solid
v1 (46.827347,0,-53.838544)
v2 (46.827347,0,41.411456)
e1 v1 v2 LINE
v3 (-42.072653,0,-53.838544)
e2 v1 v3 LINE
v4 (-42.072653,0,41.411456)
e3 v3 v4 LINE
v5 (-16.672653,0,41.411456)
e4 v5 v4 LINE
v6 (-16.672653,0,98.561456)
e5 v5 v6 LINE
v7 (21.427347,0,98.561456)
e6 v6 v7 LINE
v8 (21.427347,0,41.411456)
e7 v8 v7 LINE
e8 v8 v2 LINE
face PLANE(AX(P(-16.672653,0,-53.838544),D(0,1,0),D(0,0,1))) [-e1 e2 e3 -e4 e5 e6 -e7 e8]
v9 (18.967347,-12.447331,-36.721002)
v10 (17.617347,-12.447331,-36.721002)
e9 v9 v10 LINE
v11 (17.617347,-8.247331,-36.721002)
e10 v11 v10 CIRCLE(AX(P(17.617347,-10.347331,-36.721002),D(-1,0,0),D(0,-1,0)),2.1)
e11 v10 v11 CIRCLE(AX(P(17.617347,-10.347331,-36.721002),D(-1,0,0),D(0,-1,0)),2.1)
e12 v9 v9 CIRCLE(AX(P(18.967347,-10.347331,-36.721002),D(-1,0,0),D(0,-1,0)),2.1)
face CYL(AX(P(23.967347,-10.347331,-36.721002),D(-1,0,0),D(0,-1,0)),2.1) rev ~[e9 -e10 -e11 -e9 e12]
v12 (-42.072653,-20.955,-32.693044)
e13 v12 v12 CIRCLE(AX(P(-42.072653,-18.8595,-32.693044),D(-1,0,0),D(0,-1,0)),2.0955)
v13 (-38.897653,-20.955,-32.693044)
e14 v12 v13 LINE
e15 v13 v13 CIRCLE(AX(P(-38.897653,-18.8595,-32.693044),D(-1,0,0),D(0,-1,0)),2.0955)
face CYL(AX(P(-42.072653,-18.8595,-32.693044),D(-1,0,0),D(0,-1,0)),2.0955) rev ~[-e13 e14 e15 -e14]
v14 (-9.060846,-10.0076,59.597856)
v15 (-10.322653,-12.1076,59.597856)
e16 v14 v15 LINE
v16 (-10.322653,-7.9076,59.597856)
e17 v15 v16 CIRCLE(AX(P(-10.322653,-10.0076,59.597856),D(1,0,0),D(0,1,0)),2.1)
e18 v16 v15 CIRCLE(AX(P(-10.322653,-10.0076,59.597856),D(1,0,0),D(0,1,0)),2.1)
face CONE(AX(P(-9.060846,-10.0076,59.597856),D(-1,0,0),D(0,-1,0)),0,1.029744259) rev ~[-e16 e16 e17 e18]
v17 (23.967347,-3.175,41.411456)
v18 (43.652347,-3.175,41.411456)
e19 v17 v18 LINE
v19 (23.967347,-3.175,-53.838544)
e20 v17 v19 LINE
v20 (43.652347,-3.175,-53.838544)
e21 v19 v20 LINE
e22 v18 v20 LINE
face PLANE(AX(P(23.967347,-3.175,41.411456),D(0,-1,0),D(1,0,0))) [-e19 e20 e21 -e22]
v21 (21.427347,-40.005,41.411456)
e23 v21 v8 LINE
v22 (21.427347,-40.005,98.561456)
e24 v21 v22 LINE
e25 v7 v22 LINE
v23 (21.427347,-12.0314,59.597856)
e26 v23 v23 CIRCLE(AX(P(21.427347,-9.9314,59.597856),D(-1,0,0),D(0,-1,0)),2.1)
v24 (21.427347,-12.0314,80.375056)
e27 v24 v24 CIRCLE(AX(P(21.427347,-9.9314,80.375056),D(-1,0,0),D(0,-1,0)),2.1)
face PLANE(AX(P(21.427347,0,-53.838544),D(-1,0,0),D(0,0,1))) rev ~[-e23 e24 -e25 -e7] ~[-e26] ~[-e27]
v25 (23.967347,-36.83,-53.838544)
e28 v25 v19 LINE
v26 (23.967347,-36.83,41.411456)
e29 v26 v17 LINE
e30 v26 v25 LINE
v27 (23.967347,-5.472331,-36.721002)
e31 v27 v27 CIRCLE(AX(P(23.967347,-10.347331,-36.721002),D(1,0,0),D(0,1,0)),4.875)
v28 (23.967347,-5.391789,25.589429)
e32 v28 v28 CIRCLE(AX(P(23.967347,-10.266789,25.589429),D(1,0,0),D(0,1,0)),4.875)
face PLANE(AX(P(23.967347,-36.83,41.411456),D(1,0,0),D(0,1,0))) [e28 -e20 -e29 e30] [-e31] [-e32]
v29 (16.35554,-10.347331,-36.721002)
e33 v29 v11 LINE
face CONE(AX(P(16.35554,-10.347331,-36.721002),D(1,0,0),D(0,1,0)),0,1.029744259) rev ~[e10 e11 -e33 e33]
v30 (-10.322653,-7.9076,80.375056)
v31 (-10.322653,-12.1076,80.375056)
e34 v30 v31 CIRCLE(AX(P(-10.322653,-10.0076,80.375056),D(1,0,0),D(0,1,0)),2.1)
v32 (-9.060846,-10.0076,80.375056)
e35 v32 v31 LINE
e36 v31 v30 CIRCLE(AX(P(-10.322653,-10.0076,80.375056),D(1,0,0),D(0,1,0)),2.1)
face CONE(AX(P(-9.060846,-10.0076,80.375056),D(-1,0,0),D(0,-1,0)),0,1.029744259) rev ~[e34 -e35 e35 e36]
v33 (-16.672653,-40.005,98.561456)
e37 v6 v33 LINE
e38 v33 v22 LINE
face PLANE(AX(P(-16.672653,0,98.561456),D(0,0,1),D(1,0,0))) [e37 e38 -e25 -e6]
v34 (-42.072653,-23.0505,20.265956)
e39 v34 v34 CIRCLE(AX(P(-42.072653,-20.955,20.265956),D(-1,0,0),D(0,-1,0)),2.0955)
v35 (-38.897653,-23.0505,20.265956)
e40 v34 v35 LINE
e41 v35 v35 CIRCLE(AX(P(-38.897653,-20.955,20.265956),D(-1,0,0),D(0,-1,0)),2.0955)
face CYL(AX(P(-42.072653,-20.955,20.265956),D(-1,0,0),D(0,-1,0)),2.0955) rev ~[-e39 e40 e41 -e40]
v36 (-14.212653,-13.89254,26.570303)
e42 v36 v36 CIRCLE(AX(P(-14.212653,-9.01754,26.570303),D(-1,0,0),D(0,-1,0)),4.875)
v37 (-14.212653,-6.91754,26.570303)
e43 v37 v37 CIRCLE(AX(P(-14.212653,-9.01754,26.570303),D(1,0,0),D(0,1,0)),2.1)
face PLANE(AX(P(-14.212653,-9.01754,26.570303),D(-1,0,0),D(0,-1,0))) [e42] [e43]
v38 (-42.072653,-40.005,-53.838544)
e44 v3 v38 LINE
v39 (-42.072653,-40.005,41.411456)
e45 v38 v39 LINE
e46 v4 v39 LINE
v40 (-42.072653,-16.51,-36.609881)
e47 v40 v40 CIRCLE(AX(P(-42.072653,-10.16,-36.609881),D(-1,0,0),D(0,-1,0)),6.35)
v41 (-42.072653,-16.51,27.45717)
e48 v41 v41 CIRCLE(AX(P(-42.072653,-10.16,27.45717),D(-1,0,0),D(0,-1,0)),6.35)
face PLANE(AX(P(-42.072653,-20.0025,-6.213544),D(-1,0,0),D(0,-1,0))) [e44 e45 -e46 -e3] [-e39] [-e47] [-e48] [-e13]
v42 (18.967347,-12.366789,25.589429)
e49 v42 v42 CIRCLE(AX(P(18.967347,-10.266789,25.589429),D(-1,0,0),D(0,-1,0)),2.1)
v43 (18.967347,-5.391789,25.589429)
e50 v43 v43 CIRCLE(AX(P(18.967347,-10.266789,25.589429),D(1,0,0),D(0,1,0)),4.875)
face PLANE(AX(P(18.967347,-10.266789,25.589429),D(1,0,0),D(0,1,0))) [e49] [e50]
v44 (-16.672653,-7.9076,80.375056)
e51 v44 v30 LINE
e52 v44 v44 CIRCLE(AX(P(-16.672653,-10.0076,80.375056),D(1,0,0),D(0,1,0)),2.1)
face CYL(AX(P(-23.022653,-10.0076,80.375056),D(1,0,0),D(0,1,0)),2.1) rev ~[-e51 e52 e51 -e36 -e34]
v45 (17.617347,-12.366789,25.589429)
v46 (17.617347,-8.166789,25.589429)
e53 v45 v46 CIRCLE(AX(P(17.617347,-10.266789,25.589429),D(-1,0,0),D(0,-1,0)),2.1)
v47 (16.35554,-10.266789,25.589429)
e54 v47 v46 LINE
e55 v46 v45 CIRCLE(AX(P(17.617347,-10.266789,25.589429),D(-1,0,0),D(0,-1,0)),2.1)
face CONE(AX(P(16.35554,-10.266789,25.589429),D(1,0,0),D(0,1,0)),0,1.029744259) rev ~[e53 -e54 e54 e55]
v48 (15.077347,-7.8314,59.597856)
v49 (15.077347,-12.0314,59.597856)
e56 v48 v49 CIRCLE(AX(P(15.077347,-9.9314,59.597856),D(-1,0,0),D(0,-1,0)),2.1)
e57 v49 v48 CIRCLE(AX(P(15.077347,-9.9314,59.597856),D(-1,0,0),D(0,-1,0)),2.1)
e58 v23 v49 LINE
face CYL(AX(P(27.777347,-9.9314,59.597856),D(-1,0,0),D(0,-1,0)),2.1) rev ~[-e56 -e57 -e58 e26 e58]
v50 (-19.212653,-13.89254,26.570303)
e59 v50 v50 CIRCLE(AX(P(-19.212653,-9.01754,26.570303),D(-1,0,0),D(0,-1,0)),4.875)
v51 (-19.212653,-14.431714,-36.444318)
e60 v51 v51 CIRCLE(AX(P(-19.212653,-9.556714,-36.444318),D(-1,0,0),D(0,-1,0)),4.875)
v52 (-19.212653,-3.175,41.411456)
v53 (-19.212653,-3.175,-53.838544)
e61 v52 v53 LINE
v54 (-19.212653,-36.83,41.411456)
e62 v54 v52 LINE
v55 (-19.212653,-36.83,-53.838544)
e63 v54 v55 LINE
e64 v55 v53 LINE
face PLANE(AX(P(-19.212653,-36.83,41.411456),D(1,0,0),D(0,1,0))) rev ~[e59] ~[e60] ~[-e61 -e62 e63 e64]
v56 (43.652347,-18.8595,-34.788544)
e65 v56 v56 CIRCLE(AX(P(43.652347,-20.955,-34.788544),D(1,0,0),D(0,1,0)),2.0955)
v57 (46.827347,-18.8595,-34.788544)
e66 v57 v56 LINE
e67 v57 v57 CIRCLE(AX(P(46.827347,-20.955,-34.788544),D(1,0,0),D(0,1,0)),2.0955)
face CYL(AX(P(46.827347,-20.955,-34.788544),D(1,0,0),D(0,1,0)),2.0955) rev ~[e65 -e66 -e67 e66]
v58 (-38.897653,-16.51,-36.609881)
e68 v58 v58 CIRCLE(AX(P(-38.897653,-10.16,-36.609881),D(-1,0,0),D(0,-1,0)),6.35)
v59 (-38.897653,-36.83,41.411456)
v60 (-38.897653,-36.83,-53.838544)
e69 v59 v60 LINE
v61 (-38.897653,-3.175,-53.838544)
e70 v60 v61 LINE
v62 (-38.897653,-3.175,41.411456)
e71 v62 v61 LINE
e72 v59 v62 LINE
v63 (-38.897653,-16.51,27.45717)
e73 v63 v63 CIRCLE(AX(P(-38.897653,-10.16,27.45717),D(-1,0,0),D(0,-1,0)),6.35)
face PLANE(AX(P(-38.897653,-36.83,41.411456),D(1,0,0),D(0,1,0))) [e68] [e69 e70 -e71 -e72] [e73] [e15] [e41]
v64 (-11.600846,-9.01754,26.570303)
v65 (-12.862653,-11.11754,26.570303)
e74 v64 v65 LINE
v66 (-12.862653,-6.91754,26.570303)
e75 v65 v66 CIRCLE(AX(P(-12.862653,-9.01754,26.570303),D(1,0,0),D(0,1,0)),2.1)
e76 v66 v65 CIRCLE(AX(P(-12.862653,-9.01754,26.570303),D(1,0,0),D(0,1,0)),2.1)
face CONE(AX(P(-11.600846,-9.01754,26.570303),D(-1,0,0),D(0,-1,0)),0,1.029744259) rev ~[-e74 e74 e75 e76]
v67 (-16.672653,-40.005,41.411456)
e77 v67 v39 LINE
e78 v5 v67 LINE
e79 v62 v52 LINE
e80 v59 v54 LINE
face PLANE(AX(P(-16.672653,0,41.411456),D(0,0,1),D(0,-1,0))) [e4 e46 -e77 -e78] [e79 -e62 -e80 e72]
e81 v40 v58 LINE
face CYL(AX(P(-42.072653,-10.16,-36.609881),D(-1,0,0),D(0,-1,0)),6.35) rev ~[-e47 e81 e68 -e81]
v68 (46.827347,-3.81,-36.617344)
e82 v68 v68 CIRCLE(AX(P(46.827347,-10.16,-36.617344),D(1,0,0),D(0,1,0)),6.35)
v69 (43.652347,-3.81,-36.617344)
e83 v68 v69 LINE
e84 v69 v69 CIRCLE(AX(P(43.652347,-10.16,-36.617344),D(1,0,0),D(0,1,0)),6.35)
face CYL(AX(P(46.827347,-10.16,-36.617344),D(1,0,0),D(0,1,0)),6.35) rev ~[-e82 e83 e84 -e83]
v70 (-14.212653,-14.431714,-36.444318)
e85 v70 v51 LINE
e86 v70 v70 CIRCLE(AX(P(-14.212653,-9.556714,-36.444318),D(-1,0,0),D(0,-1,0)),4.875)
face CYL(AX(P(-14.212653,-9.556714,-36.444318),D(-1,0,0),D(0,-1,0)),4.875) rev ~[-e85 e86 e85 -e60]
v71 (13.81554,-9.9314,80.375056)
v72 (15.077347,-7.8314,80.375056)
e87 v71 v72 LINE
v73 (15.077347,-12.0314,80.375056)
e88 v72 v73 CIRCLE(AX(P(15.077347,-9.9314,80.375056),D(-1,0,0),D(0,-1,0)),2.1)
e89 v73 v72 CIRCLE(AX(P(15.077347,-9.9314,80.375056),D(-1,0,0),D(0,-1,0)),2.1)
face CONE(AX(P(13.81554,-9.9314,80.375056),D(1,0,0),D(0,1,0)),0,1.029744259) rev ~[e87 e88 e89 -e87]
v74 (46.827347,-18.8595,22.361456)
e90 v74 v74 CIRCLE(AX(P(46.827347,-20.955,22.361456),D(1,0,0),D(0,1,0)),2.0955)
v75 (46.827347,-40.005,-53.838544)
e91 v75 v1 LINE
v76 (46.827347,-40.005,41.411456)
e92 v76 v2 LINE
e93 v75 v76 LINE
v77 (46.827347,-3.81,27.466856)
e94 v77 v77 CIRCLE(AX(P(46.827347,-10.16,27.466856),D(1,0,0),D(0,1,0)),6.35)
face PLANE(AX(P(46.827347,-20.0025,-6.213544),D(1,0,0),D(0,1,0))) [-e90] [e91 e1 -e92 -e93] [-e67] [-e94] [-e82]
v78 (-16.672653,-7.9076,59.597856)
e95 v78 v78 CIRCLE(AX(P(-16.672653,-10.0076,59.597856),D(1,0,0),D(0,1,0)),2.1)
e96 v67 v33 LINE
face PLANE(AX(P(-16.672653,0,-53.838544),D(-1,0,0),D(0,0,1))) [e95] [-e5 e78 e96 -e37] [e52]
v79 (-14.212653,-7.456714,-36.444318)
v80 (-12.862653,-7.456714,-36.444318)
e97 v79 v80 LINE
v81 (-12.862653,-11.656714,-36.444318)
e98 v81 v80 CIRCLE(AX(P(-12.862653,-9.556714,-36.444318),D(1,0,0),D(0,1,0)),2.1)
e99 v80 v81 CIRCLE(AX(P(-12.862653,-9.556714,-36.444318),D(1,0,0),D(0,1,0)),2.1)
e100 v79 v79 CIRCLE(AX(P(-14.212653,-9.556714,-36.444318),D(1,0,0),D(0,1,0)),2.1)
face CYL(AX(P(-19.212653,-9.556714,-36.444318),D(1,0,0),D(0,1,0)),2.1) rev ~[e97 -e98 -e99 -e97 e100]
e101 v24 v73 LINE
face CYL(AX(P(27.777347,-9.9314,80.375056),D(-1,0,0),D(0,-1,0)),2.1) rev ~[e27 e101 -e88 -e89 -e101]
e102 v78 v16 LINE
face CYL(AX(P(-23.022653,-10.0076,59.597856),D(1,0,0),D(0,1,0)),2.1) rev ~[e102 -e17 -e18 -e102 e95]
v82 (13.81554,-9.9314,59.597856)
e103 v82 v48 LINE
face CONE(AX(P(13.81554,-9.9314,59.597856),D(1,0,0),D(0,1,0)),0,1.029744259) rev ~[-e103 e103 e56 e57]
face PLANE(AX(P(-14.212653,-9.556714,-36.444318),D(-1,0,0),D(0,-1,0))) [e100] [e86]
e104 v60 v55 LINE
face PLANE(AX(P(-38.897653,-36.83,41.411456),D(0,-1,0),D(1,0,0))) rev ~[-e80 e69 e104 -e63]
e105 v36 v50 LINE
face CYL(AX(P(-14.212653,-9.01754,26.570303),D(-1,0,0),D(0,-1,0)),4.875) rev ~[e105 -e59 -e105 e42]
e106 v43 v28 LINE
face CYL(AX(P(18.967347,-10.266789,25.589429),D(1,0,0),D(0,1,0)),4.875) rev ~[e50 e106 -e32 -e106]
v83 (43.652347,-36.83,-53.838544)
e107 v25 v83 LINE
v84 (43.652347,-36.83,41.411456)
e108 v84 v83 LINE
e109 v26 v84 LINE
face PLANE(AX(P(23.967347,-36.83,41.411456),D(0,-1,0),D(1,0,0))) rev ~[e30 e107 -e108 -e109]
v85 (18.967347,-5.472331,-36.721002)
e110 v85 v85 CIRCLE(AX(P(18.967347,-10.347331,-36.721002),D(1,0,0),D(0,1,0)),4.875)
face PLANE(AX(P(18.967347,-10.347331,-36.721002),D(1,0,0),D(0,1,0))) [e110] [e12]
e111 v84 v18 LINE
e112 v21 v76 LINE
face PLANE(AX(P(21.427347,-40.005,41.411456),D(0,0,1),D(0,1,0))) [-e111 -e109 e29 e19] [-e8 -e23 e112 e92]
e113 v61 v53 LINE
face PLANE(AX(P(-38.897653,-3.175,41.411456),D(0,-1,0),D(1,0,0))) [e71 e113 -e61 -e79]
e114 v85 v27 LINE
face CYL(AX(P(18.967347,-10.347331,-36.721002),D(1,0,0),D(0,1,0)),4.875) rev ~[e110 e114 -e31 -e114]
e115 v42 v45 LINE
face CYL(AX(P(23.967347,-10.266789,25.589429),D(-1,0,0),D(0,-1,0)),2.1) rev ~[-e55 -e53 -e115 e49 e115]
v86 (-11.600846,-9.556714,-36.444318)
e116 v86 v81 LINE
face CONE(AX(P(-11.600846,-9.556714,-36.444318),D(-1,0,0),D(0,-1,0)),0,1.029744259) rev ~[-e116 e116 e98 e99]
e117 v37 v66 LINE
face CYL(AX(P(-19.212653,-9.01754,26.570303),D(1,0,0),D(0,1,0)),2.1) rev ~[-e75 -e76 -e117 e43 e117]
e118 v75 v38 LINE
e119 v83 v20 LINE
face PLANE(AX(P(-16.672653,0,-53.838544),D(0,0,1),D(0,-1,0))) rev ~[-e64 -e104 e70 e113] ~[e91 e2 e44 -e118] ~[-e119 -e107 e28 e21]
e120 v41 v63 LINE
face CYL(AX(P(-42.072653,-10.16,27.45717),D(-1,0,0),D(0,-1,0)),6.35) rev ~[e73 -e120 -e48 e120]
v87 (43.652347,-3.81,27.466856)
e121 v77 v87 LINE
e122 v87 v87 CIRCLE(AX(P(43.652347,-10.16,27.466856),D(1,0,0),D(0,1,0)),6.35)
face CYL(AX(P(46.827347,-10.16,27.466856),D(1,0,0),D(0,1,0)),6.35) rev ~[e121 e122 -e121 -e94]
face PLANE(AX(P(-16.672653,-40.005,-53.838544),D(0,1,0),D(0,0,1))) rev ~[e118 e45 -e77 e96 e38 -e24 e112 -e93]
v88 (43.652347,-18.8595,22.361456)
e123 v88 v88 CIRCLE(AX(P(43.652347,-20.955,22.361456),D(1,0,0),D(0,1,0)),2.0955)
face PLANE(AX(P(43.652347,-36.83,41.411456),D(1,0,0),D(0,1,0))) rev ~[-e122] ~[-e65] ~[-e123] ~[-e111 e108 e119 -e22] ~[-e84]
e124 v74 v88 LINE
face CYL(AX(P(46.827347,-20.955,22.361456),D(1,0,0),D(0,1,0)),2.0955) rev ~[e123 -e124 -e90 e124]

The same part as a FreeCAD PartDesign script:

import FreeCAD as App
import Part
import Sketcher

V = App.Vector
Q = App.Units.Quantity

doc = App.newDocument("Part")
params = doc.addObject("Spreadsheet::Sheet", "Params")
for row, (alias, value) in enumerate([
    ("sketch1_height", "6 in"),
    ("sketch1_width", "1.5 in"),
    ("pad1_length", "1.575 in"),
    ("sketch2_height", "3.75 in"),
    ("sketch2_width", "1.575 in"),
    ("pad2_length", "1 in"),
    ("sketch3_height", "3.75 in"),
    ("sketch3_width", "1.575 in"),
    ("pad3_length", "1 in"),
    ("sketch4_width", "0.775 in"),
    ("sketch4_height", "1.325 in"),
    ("sketch5_width", "0.775 in"),
    ("sketch5_height", "1.325 in"),
    ("hole_diameter", "4.2 mm"),
    ("hole_depth", "0.25 in"),
    ("hole2_diameter", "4.2 mm"),
    ("hole2_depth", "0.25 in"),
    ("sketch8_diameter", "0.5 in"),
    ("pocket3_length", "0.2 in"),
    ("hole3_diameter", "4.2 mm"),
    ("hole3_depth", "0.25 in"),
    ("hole3_cbore_diameter", "9.75 mm"),
    ("hole3_cbore_depth", "5 mm"),
    ("sketch10_diameter", "0.165 in"),
    ("pocket4_length", "0.125 in"),
    ("sketch11_diameter", "0.5 in"),
    ("pocket5_length", "0.2 in"),
    ("hole4_diameter", "4.2 mm"),
    ("hole4_depth", "0.25 in"),
    ("hole4_cbore_diameter", "9.75 mm"),
    ("hole4_cbore_depth", "5 mm"),
    ("sketch13_diameter", "0.165 in"),
    ("pocket6_length", "0.125 in"),
    ("sketch14_diameter", "0.5 in"),
    ("pocket7_length", "0.125 in"),
    ("sketch15_diameter", "0.165 in"),
    ("pocket8_length", "0.125 in"),
    ("sketch16_diameter", "0.5 in"),
    ("sketch16_diameter2", "0.165 in"),
    ("pocket9_length", "0.125 in"),
    ("hole5_diameter", "4.2 mm"),
    ("hole5_depth", "0.25 in"),
    ("hole5_cbore_diameter", "9.75 mm"),
    ("hole5_cbore_depth", "5 mm"),
    ("hole6_diameter", "4.2 mm"),
    ("hole6_depth", "0.25 in"),
    ("hole6_cbore_diameter", "9.75 mm"),
    ("hole6_cbore_depth", "5 mm"),
], start=1):
    params.set(f"A{row}", alias)
    params.set(f"B{row}", "=" + value)
    params.setAlias(f"B{row}", alias)

body = doc.addObject("PartDesign::Body", "Body")

sketch1 = body.newObject("Sketcher::SketchObject", "Sketch")
sketch1.AttachmentSupport = (doc.getObject("XZ_Plane"), [""])
sketch1.MapMode = "FlatFace"
sketch1.addGeometry([
    Part.LineSegment(V(-16.672653, 98.561456, 0), V(-16.672653, -53.838544, 0)),
    Part.LineSegment(V(-16.672653, -53.838544, 0), V(21.427347, -53.838544, 0)),
    Part.LineSegment(V(21.427347, -53.838544, 0), V(21.427347, 98.561456, 0)),
    Part.LineSegment(V(21.427347, 98.561456, 0), V(-16.672653, 98.561456, 0)),
], False)
sketch1.addConstraint([
    Sketcher.Constraint("Coincident", 0, 2, 1, 1),
    Sketcher.Constraint("Coincident", 1, 2, 2, 1),
    Sketcher.Constraint("Coincident", 2, 2, 3, 1),
    Sketcher.Constraint("Coincident", 3, 2, 0, 1),
    Sketcher.Constraint("Vertical", 0),
    Sketcher.Constraint("Horizontal", 1),
    Sketcher.Constraint("Vertical", 2),
    Sketcher.Constraint("Horizontal", 3),
    Sketcher.Constraint("DistanceY", 0, 2, 0, 1, Q("6 in")),
    Sketcher.Constraint("DistanceX", 1, 1, 1, 2, Q("1.5 in")),
    Sketcher.Constraint("DistanceX", 0, 2, -1, 1, Q("16.672653 mm")),
    Sketcher.Constraint("DistanceY", 0, 2, -1, 1, Q("53.838544 mm")),
])
sketch1.setExpression("Constraints[8]", "Params.sketch1_height")
sketch1.setExpression("Constraints[9]", "Params.sketch1_width")
pad1 = body.newObject("PartDesign::Pad", "Pad")
pad1.Profile = sketch1
pad1.setExpression("Length", "Params.pad1_length")

sketch2 = body.newObject("Sketcher::SketchObject", "Sketch001")
sketch2.AttachmentSupport = (doc.getObject("YZ_Plane"), [""])
sketch2.MapMode = "FlatFace"
sketch2.AttachmentOffset = App.Placement(V(0, 0, 21.427347), App.Rotation())
sketch2.addGeometry([
    Part.LineSegment(V(-40.005, 41.411456, 0), V(-40.005, -53.838544, 0)),
    Part.LineSegment(V(-40.005, -53.838544, 0), V(0, -53.838544, 0)),
    Part.LineSegment(V(0, -53.838544, 0), V(0, 41.411456, 0)),
    Part.LineSegment(V(0, 41.411456, 0), V(-40.005, 41.411456, 0)),
], False)
sketch2.addConstraint([
    Sketcher.Constraint("Coincident", 0, 2, 1, 1),
    Sketcher.Constraint("Coincident", 1, 2, 2, 1),
    Sketcher.Constraint("Coincident", 2, 2, 3, 1),
    Sketcher.Constraint("Coincident", 3, 2, 0, 1),
    Sketcher.Constraint("Vertical", 0),
    Sketcher.Constraint("Horizontal", 1),
    Sketcher.Constraint("Vertical", 2),
    Sketcher.Constraint("Horizontal", 3),
    Sketcher.Constraint("PointOnObject", 1, 2, -2),
    Sketcher.Constraint("DistanceY", 0, 2, 0, 1, Q("3.75 in")),
    Sketcher.Constraint("DistanceX", 1, 1, 1, 2, Q("1.575 in")),
    Sketcher.Constraint("DistanceY", 0, 2, -1, 1, Q("53.838544 mm")),
])
sketch2.setExpression("Constraints[9]", "Params.sketch2_height")
sketch2.setExpression("Constraints[10]", "Params.sketch2_width")
pad2 = body.newObject("PartDesign::Pad", "Pad001")
pad2.Profile = sketch2
pad2.setExpression("Length", "Params.pad2_length")

sketch3 = body.newObject("Sketcher::SketchObject", "Sketch002")
sketch3.AttachmentSupport = (doc.getObject("YZ_Plane"), [""])
sketch3.MapMode = "FlatFace"
sketch3.AttachmentOffset = App.Placement(V(0, 0, -16.672653), App.Rotation())
sketch3.addGeometry([
    Part.LineSegment(V(0, 41.411456, 0), V(0, -53.838544, 0)),
    Part.LineSegment(V(0, -53.838544, 0), V(-40.005, -53.838544, 0)),
    Part.LineSegment(V(-40.005, -53.838544, 0), V(-40.005, 41.411456, 0)),
    Part.LineSegment(V(-40.005, 41.411456, 0), V(0, 41.411456, 0)),
], False)
sketch3.addConstraint([
    Sketcher.Constraint("Coincident", 0, 2, 1, 1),
    Sketcher.Constraint("Coincident", 1, 2, 2, 1),
    Sketcher.Constraint("Coincident", 2, 2, 3, 1),
    Sketcher.Constraint("Coincident", 3, 2, 0, 1),
    Sketcher.Constraint("Vertical", 0),
    Sketcher.Constraint("Horizontal", 1),
    Sketcher.Constraint("Vertical", 2),
    Sketcher.Constraint("Horizontal", 3),
    Sketcher.Constraint("PointOnObject", 0, 2, -2),
    Sketcher.Constraint("DistanceY", 0, 2, 0, 1, Q("3.75 in")),
    Sketcher.Constraint("DistanceX", 1, 2, 1, 1, Q("1.575 in")),
    Sketcher.Constraint("DistanceY", 0, 2, -1, 1, Q("53.838544 mm")),
])
sketch3.setExpression("Constraints[9]", "Params.sketch3_height")
sketch3.setExpression("Constraints[10]", "Params.sketch3_width")
pad3 = body.newObject("PartDesign::Pad", "Pad002")
pad3.Profile = sketch3
pad3.setExpression("Length", "Params.pad3_length")
pad3.Reversed = True

sketch4 = body.newObject("Sketcher::SketchObject", "Sketch003")
sketch4.AttachmentSupport = (doc.getObject("XY_Plane"), [""])
sketch4.MapMode = "FlatFace"
sketch4.AttachmentOffset = App.Placement(V(0, 0, 41.411456), App.Rotation())
sketch4.addGeometry([
    Part.LineSegment(V(-38.897653, -3.175, 0), V(-38.897653, -36.83, 0)),
    Part.LineSegment(V(-38.897653, -36.83, 0), V(-19.212653, -36.83, 0)),
    Part.LineSegment(V(-19.212653, -36.83, 0), V(-19.212653, -3.175, 0)),
    Part.LineSegment(V(-19.212653, -3.175, 0), V(-38.897653, -3.175, 0)),
], False)
sketch4.addConstraint([
    Sketcher.Constraint("Coincident", 0, 2, 1, 1),
    Sketcher.Constraint("Coincident", 1, 2, 2, 1),
    Sketcher.Constraint("Coincident", 2, 2, 3, 1),
    Sketcher.Constraint("Coincident", 3, 2, 0, 1),
    Sketcher.Constraint("Vertical", 0),
    Sketcher.Constraint("Horizontal", 1),
    Sketcher.Constraint("Vertical", 2),
    Sketcher.Constraint("Horizontal", 3),
    Sketcher.Constraint("DistanceX", 1, 1, 1, 2, Q("0.775 in")),
    Sketcher.Constraint("DistanceY", 0, 2, 0, 1, Q("1.325 in")),
    Sketcher.Constraint("DistanceY", 0, 2, -1, 1, Q("1.45 in")),
    Sketcher.Constraint("DistanceX", 0, 2, -1, 1, Q("38.897653 mm")),
])
sketch4.setExpression("Constraints[8]", "Params.sketch4_width")
sketch4.setExpression("Constraints[9]", "Params.sketch4_height")
pocket1 = body.newObject("PartDesign::Pocket", "Pocket")
pocket1.Profile = sketch4
pocket1.Type = "ThroughAll"

sketch5 = body.newObject("Sketcher::SketchObject", "Sketch004")
sketch5.AttachmentSupport = (doc.getObject("XY_Plane"), [""])
sketch5.MapMode = "FlatFace"
sketch5.AttachmentOffset = App.Placement(V(0, 0, 41.411456), App.Rotation())
sketch5.addGeometry([
    Part.LineSegment(V(23.967347, -3.175, 0), V(23.967347, -36.83, 0)),
    Part.LineSegment(V(23.967347, -36.83, 0), V(43.652347, -36.83, 0)),
    Part.LineSegment(V(43.652347, -36.83, 0), V(43.652347, -3.175, 0)),
    Part.LineSegment(V(43.652347, -3.175, 0), V(23.967347, -3.175, 0)),
], False)
sketch5.addConstraint([
    Sketcher.Constraint("Coincident", 0, 2, 1, 1),
    Sketcher.Constraint("Coincident", 1, 2, 2, 1),
    Sketcher.Constraint("Coincident", 2, 2, 3, 1),
    Sketcher.Constraint("Coincident", 3, 2, 0, 1),
    Sketcher.Constraint("Vertical", 0),
    Sketcher.Constraint("Horizontal", 1),
    Sketcher.Constraint("Vertical", 2),
    Sketcher.Constraint("Horizontal", 3),
    Sketcher.Constraint("DistanceX", 1, 1, 1, 2, Q("0.775 in")),
    Sketcher.Constraint("DistanceY", 0, 2, 0, 1, Q("1.325 in")),
    Sketcher.Constraint("DistanceY", 0, 2, -1, 1, Q("1.45 in")),
    Sketcher.Constraint("DistanceX", -1, 1, 0, 2, Q("23.967347 mm")),
])
sketch5.setExpression("Constraints[8]", "Params.sketch5_width")
sketch5.setExpression("Constraints[9]", "Params.sketch5_height")
pocket2 = body.newObject("PartDesign::Pocket", "Pocket001")
pocket2.Profile = sketch5
pocket2.Type = "ThroughAll"

sketch6 = body.newObject("Sketcher::SketchObject", "Sketch005")
sketch6.AttachmentSupport = (doc.getObject("YZ_Plane"), [""])
sketch6.MapMode = "FlatFace"
sketch6.AttachmentOffset = App.Placement(V(0, 0, -16.672653), App.Rotation())
sketch6.addGeometry([
    Part.Circle(V(-10.0076, 80.375056, 0), V(0, 0, 1), 2.1),
    Part.Circle(V(-10.0076, 59.597856, 0), V(0, 0, 1), 2.1),
], False)
sketch6.addConstraint([
    Sketcher.Constraint("Equal", 0, 1),
    Sketcher.Constraint("Vertical", 0, 3, 1, 3),
    Sketcher.Constraint("Diameter", 0, Q("4.2 mm")),
    Sketcher.Constraint("DistanceX", 0, 3, -1, 1, Q("0.394 in")),
    Sketcher.Constraint("DistanceY", 1, 3, 0, 3, Q("0.818 in")),
    Sketcher.Constraint("DistanceY", -1, 1, 0, 3, Q("80.375056 mm")),
])
doc.recompute()
hole = body.newObject("PartDesign::Hole", "Hole")
hole.Profile = sketch6
hole.ThreadType = "None"
hole.setExpression("Diameter", "Params.hole_diameter")
hole.DepthType = "Dimension"
hole.setExpression("Depth", "Params.hole_depth")
hole.DrillPoint = "Angled"
hole.DrillPointAngle = 118
hole.Reversed = True

sketch7 = body.newObject("Sketcher::SketchObject", "Sketch006")
sketch7.AttachmentSupport = (doc.getObject("YZ_Plane"), [""])
sketch7.MapMode = "FlatFace"
sketch7.AttachmentOffset = App.Placement(V(0, 0, 21.427347), App.Rotation())
sketch7.addGeometry([
    Part.Circle(V(-9.9314, 80.375056, 0), V(0, 0, 1), 2.1),
    Part.Circle(V(-9.9314, 59.597856, 0), V(0, 0, 1), 2.1),
], False)
sketch7.addConstraint([
    Sketcher.Constraint("Equal", 0, 1),
    Sketcher.Constraint("Vertical", 0, 3, 1, 3),
    Sketcher.Constraint("Diameter", 0, Q("4.2 mm")),
    Sketcher.Constraint("DistanceX", 0, 3, -1, 1, Q("0.391 in")),
    Sketcher.Constraint("DistanceY", 1, 3, 0, 3, Q("0.818 in")),
    Sketcher.Constraint("DistanceY", -1, 1, 0, 3, Q("80.375056 mm")),
])
doc.recompute()
hole2 = body.newObject("PartDesign::Hole", "Hole001")
hole2.Profile = sketch7
hole2.ThreadType = "None"
hole2.setExpression("Diameter", "Params.hole2_diameter")
hole2.DepthType = "Dimension"
hole2.setExpression("Depth", "Params.hole2_depth")
hole2.DrillPoint = "Angled"
hole2.DrillPointAngle = 118

sketch8 = body.newObject("Sketcher::SketchObject", "Sketch007")
sketch8.AttachmentSupport = (doc.getObject("YZ_Plane"), [""])
sketch8.MapMode = "FlatFace"
sketch8.AttachmentOffset = App.Placement(V(0, 0, -42.072653), App.Rotation())
sketch8.addGeometry(Part.Circle(V(-10.16, 27.45717, 0), V(0, 0, 1), 6.35), False)
sketch8.addConstraint([
    Sketcher.Constraint("Diameter", 0, Q("0.5 in")),
    Sketcher.Constraint("DistanceX", 0, 3, -1, 1, Q("0.4 in")),
    Sketcher.Constraint("DistanceY", -1, 1, 0, 3, Q("27.45717 mm")),
])
sketch8.setExpression("Constraints[0]", "Params.sketch8_diameter")
pocket3 = body.newObject("PartDesign::Pocket", "Pocket002")
pocket3.Profile = sketch8
pocket3.setExpression("Length", "Params.pocket3_length")
pocket3.Reversed = True

sketch9 = body.newObject("Sketcher::SketchObject", "Sketch008")
sketch9.AttachmentSupport = (doc.getObject("YZ_Plane"), [""])
sketch9.MapMode = "FlatFace"
sketch9.AttachmentOffset = App.Placement(V(0, 0, -19.212653), App.Rotation())
sketch9.addGeometry(Part.Circle(V(-9.01754, 26.570303, 0), V(0, 0, 1), 2.1), False)
sketch9.addConstraint([
    Sketcher.Constraint("Diameter", 0, Q("4.2 mm")),
    Sketcher.Constraint("DistanceX", 0, 3, -1, 1, Q("9.01754 mm")),
    Sketcher.Constraint("DistanceY", -1, 1, 0, 3, Q("26.570303 mm")),
])
doc.recompute()
hole3 = body.newObject("PartDesign::Hole", "Hole002")
hole3.Profile = sketch9
hole3.ThreadType = "None"
hole3.setExpression("Diameter", "Params.hole3_diameter")
hole3.DepthType = "Dimension"
hole3.setExpression("Depth", "Params.hole3_depth")
hole3.DrillPoint = "Angled"
hole3.DrillPointAngle = 118
hole3.HoleCutType = "Counterbore"
hole3.setExpression("HoleCutDiameter", "Params.hole3_cbore_diameter")
hole3.setExpression("HoleCutDepth", "Params.hole3_cbore_depth")
hole3.Reversed = True

sketch10 = body.newObject("Sketcher::SketchObject", "Sketch009")
sketch10.AttachmentSupport = (doc.getObject("YZ_Plane"), [""])
sketch10.MapMode = "FlatFace"
sketch10.AttachmentOffset = App.Placement(V(0, 0, -42.072653), App.Rotation())
sketch10.addGeometry(Part.Circle(V(-20.955, 20.265956, 0), V(0, 0, 1), 2.0955), False)
sketch10.addConstraint([
    Sketcher.Constraint("Diameter", 0, Q("0.165 in")),
    Sketcher.Constraint("DistanceX", 0, 3, -1, 1, Q("0.825 in")),
    Sketcher.Constraint("DistanceY", -1, 1, 0, 3, Q("20.265956 mm")),
])
sketch10.setExpression("Constraints[0]", "Params.sketch10_diameter")
pocket4 = body.newObject("PartDesign::Pocket", "Pocket003")
pocket4.Profile = sketch10
pocket4.setExpression("Length", "Params.pocket4_length")
pocket4.Reversed = True

sketch11 = body.newObject("Sketcher::SketchObject", "Sketch010")
sketch11.AttachmentSupport = (doc.getObject("YZ_Plane"), [""])
sketch11.MapMode = "FlatFace"
sketch11.AttachmentOffset = App.Placement(V(0, 0, -42.072653), App.Rotation())
sketch11.addGeometry(Part.Circle(V(-10.16, -36.609881, 0), V(0, 0, 1), 6.35), False)
sketch11.addConstraint([
    Sketcher.Constraint("Diameter", 0, Q("0.5 in")),
    Sketcher.Constraint("DistanceX", 0, 3, -1, 1, Q("0.4 in")),
    Sketcher.Constraint("DistanceY", 0, 3, -1, 1, Q("36.609881 mm")),
])
sketch11.setExpression("Constraints[0]", "Params.sketch11_diameter")
pocket5 = body.newObject("PartDesign::Pocket", "Pocket004")
pocket5.Profile = sketch11
pocket5.setExpression("Length", "Params.pocket5_length")
pocket5.Reversed = True

sketch12 = body.newObject("Sketcher::SketchObject", "Sketch011")
sketch12.AttachmentSupport = (doc.getObject("YZ_Plane"), [""])
sketch12.MapMode = "FlatFace"
sketch12.AttachmentOffset = App.Placement(V(0, 0, -19.212653), App.Rotation())
sketch12.addGeometry(Part.Circle(V(-9.556714, -36.444318, 0), V(0, 0, 1), 2.1), False)
sketch12.addConstraint([
    Sketcher.Constraint("Diameter", 0, Q("4.2 mm")),
    Sketcher.Constraint("DistanceX", 0, 3, -1, 1, Q("9.556714 mm")),
    Sketcher.Constraint("DistanceY", 0, 3, -1, 1, Q("36.444318 mm")),
])
doc.recompute()
hole4 = body.newObject("PartDesign::Hole", "Hole003")
hole4.Profile = sketch12
hole4.ThreadType = "None"
hole4.setExpression("Diameter", "Params.hole4_diameter")
hole4.DepthType = "Dimension"
hole4.setExpression("Depth", "Params.hole4_depth")
hole4.DrillPoint = "Angled"
hole4.DrillPointAngle = 118
hole4.HoleCutType = "Counterbore"
hole4.setExpression("HoleCutDiameter", "Params.hole4_cbore_diameter")
hole4.setExpression("HoleCutDepth", "Params.hole4_cbore_depth")
hole4.Reversed = True

sketch13 = body.newObject("Sketcher::SketchObject", "Sketch012")
sketch13.AttachmentSupport = (doc.getObject("YZ_Plane"), [""])
sketch13.MapMode = "FlatFace"
sketch13.AttachmentOffset = App.Placement(V(0, 0, -42.072653), App.Rotation())
sketch13.addGeometry(Part.Circle(V(-18.8595, -32.693044, 0), V(0, 0, 1), 2.0955), False)
sketch13.addConstraint([
    Sketcher.Constraint("Diameter", 0, Q("0.165 in")),
    Sketcher.Constraint("DistanceX", 0, 3, -1, 1, Q("0.7425 in")),
    Sketcher.Constraint("DistanceY", 0, 3, -1, 1, Q("32.693044 mm")),
])
sketch13.setExpression("Constraints[0]", "Params.sketch13_diameter")
pocket6 = body.newObject("PartDesign::Pocket", "Pocket005")
pocket6.Profile = sketch13
pocket6.setExpression("Length", "Params.pocket6_length")
pocket6.Reversed = True

sketch14 = body.newObject("Sketcher::SketchObject", "Sketch013")
sketch14.AttachmentSupport = (doc.getObject("YZ_Plane"), [""])
sketch14.MapMode = "FlatFace"
sketch14.AttachmentOffset = App.Placement(V(0, 0, 46.827347), App.Rotation())
sketch14.addGeometry(Part.Circle(V(-10.16, 27.466856, 0), V(0, 0, 1), 6.35), False)
sketch14.addConstraint([
    Sketcher.Constraint("Diameter", 0, Q("0.5 in")),
    Sketcher.Constraint("DistanceX", 0, 3, -1, 1, Q("0.4 in")),
    Sketcher.Constraint("DistanceY", -1, 1, 0, 3, Q("27.466856 mm")),
])
sketch14.setExpression("Constraints[0]", "Params.sketch14_diameter")
pocket7 = body.newObject("PartDesign::Pocket", "Pocket006")
pocket7.Profile = sketch14
pocket7.setExpression("Length", "Params.pocket7_length")

sketch15 = body.newObject("Sketcher::SketchObject", "Sketch014")
sketch15.AttachmentSupport = (doc.getObject("YZ_Plane"), [""])
sketch15.MapMode = "FlatFace"
sketch15.AttachmentOffset = App.Placement(V(0, 0, 46.827347), App.Rotation())
sketch15.addGeometry(Part.Circle(V(-20.955, 22.361456, 0), V(0, 0, 1), 2.0955), False)
sketch15.addConstraint([
    Sketcher.Constraint("Diameter", 0, Q("0.165 in")),
    Sketcher.Constraint("DistanceX", 0, 3, -1, 1, Q("0.825 in")),
    Sketcher.Constraint("DistanceY", -1, 1, 0, 3, Q("22.361456 mm")),
])
sketch15.setExpression("Constraints[0]", "Params.sketch15_diameter")
pocket8 = body.newObject("PartDesign::Pocket", "Pocket007")
pocket8.Profile = sketch15
pocket8.setExpression("Length", "Params.pocket8_length")

sketch16 = body.newObject("Sketcher::SketchObject", "Sketch015")
sketch16.AttachmentSupport = (doc.getObject("YZ_Plane"), [""])
sketch16.MapMode = "FlatFace"
sketch16.AttachmentOffset = App.Placement(V(0, 0, 46.827347), App.Rotation())
sketch16.addGeometry([
    Part.Circle(V(-10.16, -36.617344, 0), V(0, 0, 1), 6.35),
    Part.Circle(V(-20.955, -34.788544, 0), V(0, 0, 1), 2.0955),
], False)
sketch16.addConstraint([
    Sketcher.Constraint("Diameter", 0, Q("0.5 in")),
    Sketcher.Constraint("Diameter", 1, Q("0.165 in")),
    Sketcher.Constraint("DistanceX", 0, 3, -1, 1, Q("0.4 in")),
    Sketcher.Constraint("DistanceX", 1, 3, -1, 1, Q("0.825 in")),
    Sketcher.Constraint("DistanceY", 0, 3, 1, 3, Q("0.072 in")),
    Sketcher.Constraint("DistanceY", 0, 3, -1, 1, Q("36.617344 mm")),
])
sketch16.setExpression("Constraints[0]", "Params.sketch16_diameter")
sketch16.setExpression("Constraints[1]", "Params.sketch16_diameter2")
pocket9 = body.newObject("PartDesign::Pocket", "Pocket008")
pocket9.Profile = sketch16
pocket9.setExpression("Length", "Params.pocket9_length")

sketch17 = body.newObject("Sketcher::SketchObject", "Sketch016")
sketch17.AttachmentSupport = (doc.getObject("YZ_Plane"), [""])
sketch17.MapMode = "FlatFace"
sketch17.AttachmentOffset = App.Placement(V(0, 0, 23.967347), App.Rotation())
sketch17.addGeometry(Part.Circle(V(-10.266789, 25.589429, 0), V(0, 0, 1), 2.1), False)
sketch17.addConstraint([
    Sketcher.Constraint("Diameter", 0, Q("4.2 mm")),
    Sketcher.Constraint("DistanceX", 0, 3, -1, 1, Q("10.266789 mm")),
    Sketcher.Constraint("DistanceY", -1, 1, 0, 3, Q("25.589429 mm")),
])
doc.recompute()
hole5 = body.newObject("PartDesign::Hole", "Hole004")
hole5.Profile = sketch17
hole5.ThreadType = "None"
hole5.setExpression("Diameter", "Params.hole5_diameter")
hole5.DepthType = "Dimension"
hole5.setExpression("Depth", "Params.hole5_depth")
hole5.DrillPoint = "Angled"
hole5.DrillPointAngle = 118
hole5.HoleCutType = "Counterbore"
hole5.setExpression("HoleCutDiameter", "Params.hole5_cbore_diameter")
hole5.setExpression("HoleCutDepth", "Params.hole5_cbore_depth")

sketch18 = body.newObject("Sketcher::SketchObject", "Sketch017")
sketch18.AttachmentSupport = (doc.getObject("YZ_Plane"), [""])
sketch18.MapMode = "FlatFace"
sketch18.AttachmentOffset = App.Placement(V(0, 0, 23.967347), App.Rotation())
sketch18.addGeometry(Part.Circle(V(-10.347331, -36.721002, 0), V(0, 0, 1), 2.1), False)
sketch18.addConstraint([
    Sketcher.Constraint("Diameter", 0, Q("4.2 mm")),
    Sketcher.Constraint("DistanceX", 0, 3, -1, 1, Q("10.347331 mm")),
    Sketcher.Constraint("DistanceY", 0, 3, -1, 1, Q("36.721002 mm")),
])
doc.recompute()
hole6 = body.newObject("PartDesign::Hole", "Hole005")
hole6.Profile = sketch18
hole6.ThreadType = "None"
hole6.setExpression("Diameter", "Params.hole6_diameter")
hole6.DepthType = "Dimension"
hole6.setExpression("Depth", "Params.hole6_depth")
hole6.DrillPoint = "Angled"
hole6.DrillPointAngle = 118
hole6.HoleCutType = "Counterbore"
hole6.setExpression("HoleCutDiameter", "Params.hole6_cbore_diameter")
hole6.setExpression("HoleCutDepth", "Params.hole6_cbore_depth")

doc.recompute()
